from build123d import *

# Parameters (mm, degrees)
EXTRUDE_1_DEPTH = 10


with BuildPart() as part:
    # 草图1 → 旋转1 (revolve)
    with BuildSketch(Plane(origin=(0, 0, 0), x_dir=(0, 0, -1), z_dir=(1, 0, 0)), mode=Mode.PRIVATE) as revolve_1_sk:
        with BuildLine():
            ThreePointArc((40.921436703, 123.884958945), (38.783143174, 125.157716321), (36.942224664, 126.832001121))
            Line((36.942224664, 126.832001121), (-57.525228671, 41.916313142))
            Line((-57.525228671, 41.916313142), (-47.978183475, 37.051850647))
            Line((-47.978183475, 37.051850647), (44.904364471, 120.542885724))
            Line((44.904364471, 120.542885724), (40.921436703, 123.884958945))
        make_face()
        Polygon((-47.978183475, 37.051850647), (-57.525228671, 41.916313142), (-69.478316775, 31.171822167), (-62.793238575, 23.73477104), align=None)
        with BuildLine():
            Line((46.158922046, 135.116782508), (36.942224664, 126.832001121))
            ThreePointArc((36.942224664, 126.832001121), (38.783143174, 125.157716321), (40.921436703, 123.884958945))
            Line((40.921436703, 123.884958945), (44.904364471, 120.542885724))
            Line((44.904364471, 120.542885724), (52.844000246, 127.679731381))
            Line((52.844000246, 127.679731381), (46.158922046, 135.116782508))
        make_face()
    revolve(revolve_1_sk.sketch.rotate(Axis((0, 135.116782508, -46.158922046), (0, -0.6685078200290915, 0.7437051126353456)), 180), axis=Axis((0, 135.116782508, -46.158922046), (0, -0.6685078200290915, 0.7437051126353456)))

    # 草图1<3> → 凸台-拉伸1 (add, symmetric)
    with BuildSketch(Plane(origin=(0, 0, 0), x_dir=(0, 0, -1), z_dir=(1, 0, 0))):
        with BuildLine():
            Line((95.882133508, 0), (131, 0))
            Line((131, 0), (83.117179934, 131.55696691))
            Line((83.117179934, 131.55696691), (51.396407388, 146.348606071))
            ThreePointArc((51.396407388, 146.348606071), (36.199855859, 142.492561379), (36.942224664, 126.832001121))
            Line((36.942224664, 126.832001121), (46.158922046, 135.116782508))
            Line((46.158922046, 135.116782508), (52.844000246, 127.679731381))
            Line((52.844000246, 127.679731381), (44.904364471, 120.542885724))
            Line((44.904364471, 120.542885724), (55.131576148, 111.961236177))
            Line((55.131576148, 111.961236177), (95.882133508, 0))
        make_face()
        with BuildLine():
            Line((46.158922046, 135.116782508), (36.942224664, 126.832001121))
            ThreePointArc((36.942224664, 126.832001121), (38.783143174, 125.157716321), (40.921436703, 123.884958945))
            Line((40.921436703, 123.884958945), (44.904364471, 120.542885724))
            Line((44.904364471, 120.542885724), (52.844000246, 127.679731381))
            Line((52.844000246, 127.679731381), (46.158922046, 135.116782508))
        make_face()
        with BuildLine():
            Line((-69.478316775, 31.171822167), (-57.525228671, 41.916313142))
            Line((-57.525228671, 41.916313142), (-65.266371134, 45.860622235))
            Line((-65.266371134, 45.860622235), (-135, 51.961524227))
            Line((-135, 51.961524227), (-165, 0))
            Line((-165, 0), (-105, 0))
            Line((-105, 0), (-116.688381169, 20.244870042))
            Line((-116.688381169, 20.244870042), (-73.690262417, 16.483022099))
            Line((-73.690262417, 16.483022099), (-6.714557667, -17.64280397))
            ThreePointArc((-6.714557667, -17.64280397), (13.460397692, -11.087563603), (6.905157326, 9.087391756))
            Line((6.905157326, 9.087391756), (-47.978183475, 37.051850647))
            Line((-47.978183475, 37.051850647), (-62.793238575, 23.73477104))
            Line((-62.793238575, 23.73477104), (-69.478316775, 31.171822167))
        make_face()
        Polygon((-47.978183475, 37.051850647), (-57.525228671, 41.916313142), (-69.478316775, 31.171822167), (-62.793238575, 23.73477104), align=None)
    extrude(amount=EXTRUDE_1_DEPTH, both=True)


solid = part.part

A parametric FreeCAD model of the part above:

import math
import FreeCAD as App
import Part
import Sketcher
from FreeCAD import Vector
Q = App.Units.Quantity

doc = App.newDocument("Part")
params = doc.addObject("Spreadsheet::Sheet", "Params")
for row, (alias, value) in enumerate([
    ("sketch1_length", "10 mm"),
    ("revolution_angle", "360 deg"),
    ("sketch2_radius", "15 mm"),
    ("sketch2_height", "60 mm"),
    ("sketch2_length", "140 mm"),
    ("sketch2_length2", "35 mm"),
    ("sketch2_length3", "70 mm"),
    ("pad1_length", "20 mm"),
], start=1):
    params.set(f"A{row}", alias)
    params.set(f"B{row}", "=" + value)
    params.setAlias(f"B{row}", alias)

body = doc.addObject("PartDesign::Body", "Body")

# Sketch on YZ plane
sketch1 = doc.addObject("Sketcher::SketchObject", "Sketch")
body.addObject(sketch1)
sketch1.AttachmentSupport = (doc.YZ_Plane, [""])
sketch1.MapMode = "FlatFace"
sketch1.addGeometry(Part.LineSegment(Vector(127, -37, 0), Vector(42, 58, 0)), False)
sketch1.addGeometry(Part.LineSegment(Vector(42, 58, 0), Vector(31, 69, 0)), False)
sketch1.addGeometry(Part.LineSegment(Vector(31, 69, 0), Vector(24, 63, 0)), False)
sketch1.addGeometry(Part.LineSegment(Vector(24, 63, 0), Vector(37, 48, 0)), False)
sketch1.addGeometry(Part.LineSegment(Vector(37, 48, 0), Vector(121, -45, 0)), False)
sketch1.addGeometry(Part.LineSegment(Vector(121, -45, 0), Vector(128, -53, 0)), False)
sketch1.addGeometry(Part.LineSegment(Vector(128, -53, 0), Vector(135, -46, 0)), False)
sketch1.addGeometry(Part.LineSegment(Vector(135, -46, 0), Vector(127, -37, 0)), False)
sketch1.addGeometry(Part.LineSegment(Vector(135, -46, 0), Vector(31, 69, 0)), True)  # axis
sketch1.addConstraint(Sketcher.Constraint("Coincident", 0, 2, 1, 1))
sketch1.addConstraint(Sketcher.Constraint("Coincident", 1, 2, 2, 1))
sketch1.addConstraint(Sketcher.Constraint("Coincident", 2, 2, 3, 1))
sketch1.addConstraint(Sketcher.Constraint("Coincident", 3, 2, 4, 1))
sketch1.addConstraint(Sketcher.Constraint("Coincident", 4, 2, 5, 1))
sketch1.addConstraint(Sketcher.Constraint("Coincident", 5, 2, 6, 1))
sketch1.addConstraint(Sketcher.Constraint("Coincident", 6, 2, 7, 1))
sketch1.addConstraint(Sketcher.Constraint("Coincident", 7, 2, 0, 1))
sketch1.addConstraint(Sketcher.Constraint("Coincident", 8, 1, 6, 2))
sketch1.addConstraint(Sketcher.Constraint("Coincident", 8, 2, 1, 2))
sketch1.addConstraint(Sketcher.Constraint("Parallel", 0, 1))
sketch1.addConstraint(Sketcher.Constraint("Perpendicular", 1, 2))
sketch1.addConstraint(Sketcher.Constraint("Perpendicular", 2, 3))
sketch1.addConstraint(Sketcher.Constraint("Parallel", 3, 4))
sketch1.addConstraint(Sketcher.Constraint("Parallel", 4, 5))
sketch1.addConstraint(Sketcher.Constraint("Perpendicular", 5, 6))
sketch1.addConstraint(Sketcher.Constraint("Perpendicular", 6, 7))
sketch1.addConstraint(Sketcher.Constraint("Distance", 2, 10.0))
sketch1.addConstraint(Sketcher.Constraint("DistanceY", 5, 2, -1, 1, 52.844))
sketch1.addConstraint(Sketcher.Constraint("DistanceX", -1, 1, 7, 2, 126.832001))
sketch1.addConstraint(Sketcher.Constraint("Distance", 0, 127.022729))
sketch1.addConstraint(Sketcher.Constraint("Distance", 1, 16.072349))
sketch1.addConstraint(Sketcher.Constraint("DistanceY", -1, 1, 0, 2, 57.525229))
sketch1.addConstraint(Sketcher.Constraint("DistanceX", -1, 1, 2, 2, 23.734771))
sketch1.addConstraint(Sketcher.Constraint("DistanceX", -1, 1, 3, 2, 37.051851))
sketch1.addConstraint(Sketcher.Constraint("DistanceY", 4, 2, 1, 2, 114.382681))
sketch1.setExpression("Constraints[17]", "Params.sketch1_length")
revolution = doc.addObject("PartDesign::Revolution", "Revolution")
body.addObject(revolution)
revolution.Profile = sketch1
revolution.ReferenceAxis = (sketch1, ["Axis0"])
revolution.setExpression("Angle", "Params.revolution_angle")

# Sketch on YZ plane
sketch2 = doc.addObject("Sketcher::SketchObject", "Sketch001")
body.addObject(sketch2)
sketch2.AttachmentSupport = (doc.YZ_Plane, [""])
sketch2.MapMode = "FlatFace"
sketch2.addGeometry(Part.LineSegment(Vector(0, -95.9, 0), Vector(0, -131, 0)), False)
sketch2.addGeometry(Part.LineSegment(Vector(0, -131, 0), Vector(131.6, -83.1, 0)), False)
sketch2.addGeometry(Part.LineSegment(Vector(131.6, -83.1, 0), Vector(146.3, -51.4, 0)), False)
sketch2.addGeometry(Part.ArcOfCircle(Part.Circle(Vector(135.1, -46.2, 0), Vector(0, 0, 1), 12.4), math.radians(-25), math.radians(132)), False)
sketch2.addGeometry(Part.ArcOfCircle(Part.Circle(Vector(135.1, -46.2, 0), Vector(0, 0, 1), 12.4), math.radians(132), math.radians(155)), False)
sketch2.addGeometry(Part.LineSegment(Vector(123.9, -40.9, 0), Vector(120.5, -44.9, 0)), False)
sketch2.addGeometry(Part.LineSegment(Vector(120.5, -44.9, 0), Vector(112, -55.1, 0)), False)
sketch2.addGeometry(Part.LineSegment(Vector(112, -55.1, 0), Vector(0, -95.9, 0)), False)
sketch2.addGeometry(Part.LineSegment(Vector(41.9, 57.5, 0), Vector(45.9, 65.3, 0)), False)
sketch2.addGeometry(Part.LineSegment(Vector(45.9, 65.3, 0), Vector(52, 135, 0)), False)
sketch2.addGeometry(Part.LineSegment(Vector(52, 135, 0), Vector(0, 165, 0)), False)
sketch2.addGeometry(Part.LineSegment(Vector(0, 165, 0), Vector(0, 105, 0)), False)
sketch2.addGeometry(Part.LineSegment(Vector(0, 105, 0), Vector(20.2, 116.7, 0)), False)
sketch2.addGeometry(Part.LineSegment(Vector(20.2, 116.7, 0), Vector(16.5, 73.7, 0)), False)
sketch2.addGeometry(Part.LineSegment(Vector(16.5, 73.7, 0), Vector(-17.6, 6.7, 0)), False)
sketch2.addGeometry(Part.ArcOfCircle(Part.Circle(Vector(-4.3, -0.1, 0), Vector(0, 0, 1), 15), math.radians(153), math.radians(333)), False)
sketch2.addGeometry(Part.LineSegment(Vector(9.1, -6.9, 0), Vector(37.1, 48, 0)), False)
sketch2.addGeometry(Part.LineSegment(Vector(37.1, 48, 0), Vector(41.9, 57.5, 0)), False)
sketch2.addConstraint(Sketcher.Constraint("Coincident", 0, 2, 1, 1))
sketch2.addConstraint(Sketcher.Constraint("Coincident", 1, 2, 2, 1))
sketch2.addConstraint(Sketcher.Constraint("Tangent", 2, 2, 3, 1))
sketch2.addConstraint(Sketcher.Constraint("Tangent", 3, 2, 4, 1))
sketch2.addConstraint(Sketcher.Constraint("Coincident", 4, 2, 5, 1))
sketch2.addConstraint(Sketcher.Constraint("Coincident", 5, 2, 6, 1))
sketch2.addConstraint(Sketcher.Constraint("Coincident", 6, 2, 7, 1))
sketch2.addConstraint(Sketcher.Constraint("Coincident", 7, 2, 0, 1))
sketch2.addConstraint(Sketcher.Constraint("Coincident", 8, 2, 9, 1))
sketch2.addConstraint(Sketcher.Constraint("Coincident", 9, 2, 10, 1))
sketch2.addConstraint(Sketcher.Constraint("Coincident", 10, 2, 11, 1))
sketch2.addConstraint(Sketcher.Constraint("Coincident", 11, 2, 12, 1))
sketch2.addConstraint(Sketcher.Constraint("Coincident", 12, 2, 13, 1))
sketch2.addConstraint(Sketcher.Constraint("Coincident", 13, 2, 14, 1))
sketch2.addConstraint(Sketcher.Constraint("Tangent", 14, 2, 15, 1))
sketch2.addConstraint(Sketcher.Constraint("Tangent", 15, 2, 16, 1))
sketch2.addConstraint(Sketcher.Constraint("Coincident", 16, 2, 17, 1))
sketch2.addConstraint(Sketcher.Constraint("Coincident", 17, 2, 8, 1))
sketch2.addConstraint(Sketcher.Constraint("Vertical", 0))
sketch2.addConstraint(Sketcher.Constraint("Vertical", 11))
sketch2.addConstraint(Sketcher.Constraint("Equal", 3, 4))
sketch2.addConstraint(Sketcher.Constraint("PointOnObject", 0, 2, -2))
sketch2.addConstraint(Sketcher.Constraint("PointOnObject", 10, 2, -2))
sketch2.addConstraint(Sketcher.Constraint("Parallel", 5, 6))
sketch2.addConstraint(Sketcher.Constraint("Parallel", 1, 7))
sketch2.addConstraint(Sketcher.Constraint("Parallel", 9, 13))
sketch2.addConstraint(Sketcher.Constraint("Parallel", 8, 14))
sketch2.addConstraint(Sketcher.Constraint("Parallel", 14, 16))
sketch2.addConstraint(Sketcher.Constraint("Parallel", 16, 17))
sketch2.addConstraint(Sketcher.Constraint("Radius", 15, 15.0))
sketch2.addConstraint(Sketcher.Constraint("DistanceY", 11, 2, 11, 1, 60.0))
sketch2.addConstraint(Sketcher.Constraint("Angle", 1, Q("20 deg")))
sketch2.addConstraint(Sketcher.Constraint("Angle", 2, Q("65 deg")))
sketch2.addConstraint(Sketcher.Constraint("Angle", 5, Q("-130 deg")))
sketch2.addConstraint(Sketcher.Constraint("Angle", 8, Q("63 deg")))
sketch2.addConstraint(Sketcher.Constraint("Angle", 9, Q("85 deg")))
sketch2.addConstraint(Sketcher.Constraint("Angle", 10, Q("150 deg")))
sketch2.addConstraint(Sketcher.Constraint("Angle", 12, Q("30 deg")))
sketch2.addConstraint(Sketcher.Constraint("Distance", 1, 140.0))
sketch2.addConstraint(Sketcher.Constraint("Distance", 2, 35.0))
sketch2.addConstraint(Sketcher.Constraint("Distance", 9, 70.0))
sketch2.addConstraint(Sketcher.Constraint("Distance", 10, 60.0))
sketch2.addConstraint(Sketcher.Constraint("DistanceY", 0, 2, -1, 1, 131.0))
sketch2.addConstraint(Sketcher.Constraint("DistanceY", -1, 1, 9, 2, 135.0))
sketch2.addConstraint(Sketcher.Constraint("DistanceX", -1, 1, 3, 2, 126.832001))
sketch2.addConstraint(Sketcher.Constraint("Radius", 3, 12.392946))
sketch2.addConstraint(Sketcher.Constraint("Distance", 17, 10.714899))
sketch2.addConstraint(Sketcher.Constraint("DistanceY", 15, 3, -1, 1, 0.0953))
sketch2.addConstraint(Sketcher.Constraint("DistanceX", 13, 2, 8, 2, 29.3776))
sketch2.addConstraint(Sketcher.Constraint("Distance", 7, 119.146659))
sketch2.addConstraint(Sketcher.Constraint("DistanceY", 0, 2, 0, 1, 35.117866))
sketch2.addConstraint(Sketcher.Constraint("DistanceX", -1, 1, 16, 2, 37.051851))
sketch2.addConstraint(Sketcher.Constraint("DistanceY", 5, 2, 3, 2, 7.96214))
sketch2.setExpression("Constraints[29]", "Params.sketch2_radius")
sketch2.setExpression("Constraints[30]", "Params.sketch2_height")
sketch2.setExpression("Constraints[38]", "Params.sketch2_length")
sketch2.setExpression("Constraints[39]", "Params.sketch2_length2")
sketch2.setExpression("Constraints[40]", "Params.sketch2_length3")
pad1 = doc.addObject("PartDesign::Pad", "Pad")
body.addObject(pad1)
pad1.Profile = sketch2
pad1.setExpression("Length", "Params.pad1_length")
pad1.Midplane = True

doc.recompute()
